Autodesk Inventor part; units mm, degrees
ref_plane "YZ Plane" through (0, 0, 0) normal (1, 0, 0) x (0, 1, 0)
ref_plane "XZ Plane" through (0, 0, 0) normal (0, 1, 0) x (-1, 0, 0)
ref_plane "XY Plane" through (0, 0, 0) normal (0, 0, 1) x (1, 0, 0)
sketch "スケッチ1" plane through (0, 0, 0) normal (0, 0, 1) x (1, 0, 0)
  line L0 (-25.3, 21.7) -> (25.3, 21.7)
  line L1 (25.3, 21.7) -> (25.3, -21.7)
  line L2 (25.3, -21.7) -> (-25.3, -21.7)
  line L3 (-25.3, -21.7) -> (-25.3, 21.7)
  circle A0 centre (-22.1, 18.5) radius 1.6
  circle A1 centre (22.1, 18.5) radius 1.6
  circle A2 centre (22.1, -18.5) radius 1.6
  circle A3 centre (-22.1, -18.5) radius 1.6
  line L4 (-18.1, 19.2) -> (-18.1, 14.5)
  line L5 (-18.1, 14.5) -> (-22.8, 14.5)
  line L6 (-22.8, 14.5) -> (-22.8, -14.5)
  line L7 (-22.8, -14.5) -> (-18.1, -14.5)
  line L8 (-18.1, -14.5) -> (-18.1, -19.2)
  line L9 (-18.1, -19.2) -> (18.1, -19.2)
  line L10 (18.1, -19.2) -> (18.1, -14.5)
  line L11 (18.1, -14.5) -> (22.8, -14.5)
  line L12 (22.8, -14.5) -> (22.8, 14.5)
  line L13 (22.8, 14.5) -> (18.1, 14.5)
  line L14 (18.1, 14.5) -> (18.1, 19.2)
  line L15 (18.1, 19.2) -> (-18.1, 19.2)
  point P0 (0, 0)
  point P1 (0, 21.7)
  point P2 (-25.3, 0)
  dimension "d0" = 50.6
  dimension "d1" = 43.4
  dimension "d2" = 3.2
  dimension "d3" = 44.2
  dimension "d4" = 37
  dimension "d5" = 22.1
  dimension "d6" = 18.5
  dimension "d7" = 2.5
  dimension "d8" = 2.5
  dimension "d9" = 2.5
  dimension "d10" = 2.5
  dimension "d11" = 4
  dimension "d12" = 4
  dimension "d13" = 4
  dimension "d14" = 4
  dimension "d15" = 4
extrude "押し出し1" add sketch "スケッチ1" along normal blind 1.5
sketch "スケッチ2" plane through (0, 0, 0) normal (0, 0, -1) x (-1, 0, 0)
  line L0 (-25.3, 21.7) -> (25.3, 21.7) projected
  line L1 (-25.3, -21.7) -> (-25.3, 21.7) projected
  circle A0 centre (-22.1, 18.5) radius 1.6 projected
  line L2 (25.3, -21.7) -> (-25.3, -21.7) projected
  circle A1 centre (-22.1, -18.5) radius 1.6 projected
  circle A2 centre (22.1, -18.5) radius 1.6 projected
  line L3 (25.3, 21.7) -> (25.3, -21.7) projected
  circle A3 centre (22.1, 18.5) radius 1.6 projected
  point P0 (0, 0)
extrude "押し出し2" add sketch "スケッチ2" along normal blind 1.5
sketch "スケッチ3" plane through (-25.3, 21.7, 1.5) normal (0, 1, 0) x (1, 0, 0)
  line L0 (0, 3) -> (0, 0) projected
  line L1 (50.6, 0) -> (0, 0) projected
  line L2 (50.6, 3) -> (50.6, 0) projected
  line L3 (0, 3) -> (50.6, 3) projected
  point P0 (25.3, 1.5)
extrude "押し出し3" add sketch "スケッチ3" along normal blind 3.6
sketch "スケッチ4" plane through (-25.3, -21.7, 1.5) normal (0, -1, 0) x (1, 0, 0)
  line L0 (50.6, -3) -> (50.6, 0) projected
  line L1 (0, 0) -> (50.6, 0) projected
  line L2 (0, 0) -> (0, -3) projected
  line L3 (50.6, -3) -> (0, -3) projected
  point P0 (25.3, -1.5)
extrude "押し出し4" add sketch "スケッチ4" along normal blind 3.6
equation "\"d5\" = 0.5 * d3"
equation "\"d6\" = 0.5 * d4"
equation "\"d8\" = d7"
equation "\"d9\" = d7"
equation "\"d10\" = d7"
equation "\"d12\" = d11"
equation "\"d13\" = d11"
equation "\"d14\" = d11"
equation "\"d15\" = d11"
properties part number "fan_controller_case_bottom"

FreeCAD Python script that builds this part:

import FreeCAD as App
import Part
import Sketcher

V = App.Vector
Q = App.Units.Quantity


def add_polygon(sketch, points):
    """Adds a closed chain of lines whose ends are joined by coincident constraints."""
    first, n = sketch.GeometryCount, len(points)
    for a, b in zip(points, points[1:] + points[:1]):
        sketch.addGeometry(Part.LineSegment(App.Vector(*a, 0), App.Vector(*b, 0)), False)
    for i in range(n):
        sketch.addConstraint(Sketcher.Constraint("Coincident", first + i, 2, first + (i + 1) % n, 1))

doc = App.newDocument("Part")
params = doc.addObject("Spreadsheet::Sheet", "Params")
for row, (alias, value) in enumerate([
    ("sketch1_diameter", "3.2 mm"),
    ("sketch1_width", "50.6 mm"),
    ("sketch1_height", "43.4 mm"),
    ("pad1_length", "1.5 mm"),
    ("sketch2_diameter", "3.2 mm"),
    ("sketch2_width", "50.6 mm"),
    ("sketch2_height", "43.4 mm"),
    ("pad2_length", "1.5 mm"),
    ("sketch3_height", "3 mm"),
    ("sketch3_width", "50.6 mm"),
    ("pad3_length", "3.6 mm"),
    ("sketch4_height", "3 mm"),
    ("sketch4_width", "50.6 mm"),
    ("pad4_length", "3.6 mm"),
], start=1):
    params.set(f"A{row}", alias)
    params.set(f"B{row}", "=" + value)
    params.setAlias(f"B{row}", alias)

body = doc.addObject("PartDesign::Body", "Body")

# Sketch on XY plane
sketch1 = doc.addObject("Sketcher::SketchObject", "Sketch")
body.addObject(sketch1)
sketch1.AttachmentSupport = (doc.XY_Plane, [""])
sketch1.MapMode = "FlatFace"
add_polygon(sketch1, [(25.3, 21.7), (-25.3, 21.7), (-25.3, -21.7), (25.3, -21.7)])  # lines 0-3
sketch1.addGeometry(Part.Circle(V(-22.1, -18.5, 0), V(0, 0, 1), 1.6), False)  # 4
sketch1.addGeometry(Part.Circle(V(22.1, -18.5, 0), V(0, 0, 1), 1.6), False)  # 5
sketch1.addGeometry(Part.Circle(V(-22.1, 18.5, 0), V(0, 0, 1), 1.6), False)  # 6
add_polygon(sketch1, [(-18.1, 14.5), (-18.1, 19.2), (18.1, 19.2), (18.1, 14.5), (22.8, 14.5), (22.8, -14.5), (18.1, -14.5), (18.1, -19.2), (-18.1, -19.2), (-18.1, -14.5), (-22.8, -14.5), (-22.8, 14.5)])  # lines 7-18
sketch1.addGeometry(Part.Circle(V(22.1, 18.5, 0), V(0, 0, 1), 1.6), False)  # 19
sketch1.addConstraint([
    Sketcher.Constraint("Horizontal", 0),
    Sketcher.Constraint("Vertical", 1),
    Sketcher.Constraint("Horizontal", 2),
    Sketcher.Constraint("Vertical", 3),
    Sketcher.Constraint("Vertical", 7),
    Sketcher.Constraint("Horizontal", 8),
    Sketcher.Constraint("Vertical", 9),
    Sketcher.Constraint("Horizontal", 10),
    Sketcher.Constraint("Vertical", 11),
    Sketcher.Constraint("Horizontal", 12),
    Sketcher.Constraint("Vertical", 13),
    Sketcher.Constraint("Horizontal", 14),
    Sketcher.Constraint("Vertical", 15),
    Sketcher.Constraint("Horizontal", 16),
    Sketcher.Constraint("Vertical", 17),
    Sketcher.Constraint("Horizontal", 18),
    Sketcher.Constraint("Equal", 4, 5),
    Sketcher.Constraint("Equal", 5, 6),
    Sketcher.Constraint("Equal", 6, 19),
    Sketcher.Constraint("Symmetric", 5, 3, 6, 3, -1, 1),
    Sketcher.Constraint("Symmetric", 4, 3, 19, 3, -1, 1),
    Sketcher.Constraint("Symmetric", 0, 2, 2, 2, -1, 1),
    Sketcher.Constraint("Symmetric", 7, 2, 13, 2, -1, 1),
    Sketcher.Constraint("Symmetric", 9, 2, 15, 2, -1, 1),
    Sketcher.Constraint("Symmetric", 11, 2, 17, 2, -1, 1),
    Sketcher.Constraint("Symmetric", 4, 3, 5, 3, -2),
    Sketcher.Constraint("Symmetric", 12, 2, 15, 2, -2),
    Sketcher.Constraint("Equal", 18, 7),
    Sketcher.Constraint("Diameter", 4, Q("3.2 mm")),
    Sketcher.Constraint("DistanceX", 0, 2, 0, 1, Q("50.6 mm")),
    Sketcher.Constraint("DistanceY", 1, 2, 1, 1, Q("43.4 mm")),
    Sketcher.Constraint("DistanceY", 4, 3, 6, 3, Q("37 mm")),
    Sketcher.Constraint("DistanceX", 6, 3, 7, 2, Q("4 mm")),
    Sketcher.Constraint("DistanceY", 9, 2, 19, 3, Q("4 mm")),
    Sketcher.Constraint("DistanceX", 4, 3, -1, 1, Q("22.1 mm")),
    Sketcher.Constraint("DistanceY", 7, 2, 0, 2, Q("2.5 mm")),
])
sketch1.setExpression("Constraints[44]", "Params.sketch1_diameter")
sketch1.setExpression("Constraints[45]", "Params.sketch1_width")
sketch1.setExpression("Constraints[46]", "Params.sketch1_height")
pad1 = doc.addObject("PartDesign::Pad", "Pad")
body.addObject(pad1)
pad1.Profile = sketch1
pad1.setExpression("Length", "Params.pad1_length")

# Sketch on XY plane
sketch2 = doc.addObject("Sketcher::SketchObject", "Sketch001")
body.addObject(sketch2)
sketch2.AttachmentSupport = (doc.XY_Plane, [""])
sketch2.MapMode = "FlatFace"
add_polygon(sketch2, [(-25.3, 21.7), (25.3, 21.7), (25.3, -21.7), (-25.3, -21.7)])  # lines 0-3
sketch2.addGeometry(Part.Circle(V(22.1, -18.5, 0), V(0, 0, 1), 1.6), False)  # 4
sketch2.addGeometry(Part.Circle(V(-22.1, -18.5, 0), V(0, 0, 1), 1.6), False)  # 5
sketch2.addGeometry(Part.Circle(V(22.1, 18.5, 0), V(0, 0, 1), 1.6), False)  # 6
sketch2.addGeometry(Part.Circle(V(-22.1, 18.5, 0), V(0, 0, 1), 1.6), False)  # 7
sketch2.addConstraint([
    Sketcher.Constraint("Horizontal", 0),
    Sketcher.Constraint("Vertical", 1),
    Sketcher.Constraint("Horizontal", 2),
    Sketcher.Constraint("Vertical", 3),
    Sketcher.Constraint("Equal", 4, 5),
    Sketcher.Constraint("Equal", 5, 6),
    Sketcher.Constraint("Equal", 6, 7),
    Sketcher.Constraint("Symmetric", 5, 3, 6, 3, -1, 1),
    Sketcher.Constraint("Symmetric", 4, 3, 7, 3, -1, 1),
    Sketcher.Constraint("Symmetric", 0, 2, 2, 2, -1, 1),
    Sketcher.Constraint("Symmetric", 4, 3, 5, 3, -2),
    Sketcher.Constraint("Diameter", 4, Q("3.2 mm")),
    Sketcher.Constraint("DistanceX", 0, 1, 0, 2, Q("50.6 mm")),
    Sketcher.Constraint("DistanceY", 1, 2, 1, 1, Q("43.4 mm")),
    Sketcher.Constraint("DistanceY", 4, 3, 6, 3, Q("37 mm")),
    Sketcher.Constraint("DistanceX", -1, 1, 4, 3, Q("22.1 mm")),
])
sketch2.setExpression("Constraints[15]", "Params.sketch2_diameter")
sketch2.setExpression("Constraints[16]", "Params.sketch2_width")
sketch2.setExpression("Constraints[17]", "Params.sketch2_height")
pad2 = doc.addObject("PartDesign::Pad", "Pad001")
body.addObject(pad2)
pad2.Profile = sketch2
pad2.setExpression("Length", "Params.pad2_length")
pad2.Reversed = True

# Sketch on XZ plane
sketch3 = doc.addObject("Sketcher::SketchObject", "Sketch002")
body.addObject(sketch3)
sketch3.AttachmentSupport = (doc.XZ_Plane, [""])
sketch3.MapMode = "FlatFace"
sketch3.AttachmentOffset = App.Placement(V(0, 0, -21.7), App.Rotation())
add_polygon(sketch3, [(25.3, -1.5), (-25.3, -1.5), (-25.3, 1.5), (25.3, 1.5)])  # lines 0-3
sketch3.addConstraint([
    Sketcher.Constraint("Horizontal", 0),
    Sketcher.Constraint("Vertical", 1),
    Sketcher.Constraint("Horizontal", 2),
    Sketcher.Constraint("Vertical", 3),
    Sketcher.Constraint("Symmetric", 0, 2, 2, 2, -1, 1),
    Sketcher.Constraint("DistanceY", 1, 1, 1, 2, Q("3 mm")),
    Sketcher.Constraint("DistanceX", 0, 2, 0, 1, Q("50.6 mm")),
])
sketch3.setExpression("Constraints[9]", "Params.sketch3_height")
sketch3.setExpression("Constraints[10]", "Params.sketch3_width")
pad3 = doc.addObject("PartDesign::Pad", "Pad002")
body.addObject(pad3)
pad3.Profile = sketch3
pad3.setExpression("Length", "Params.pad3_length")
pad3.Reversed = True

# Sketch on XZ plane
sketch4 = doc.addObject("Sketcher::SketchObject", "Sketch003")
body.addObject(sketch4)
sketch4.AttachmentSupport = (doc.XZ_Plane, [""])
sketch4.MapMode = "FlatFace"
sketch4.AttachmentOffset = App.Placement(V(0, 0, 21.7), App.Rotation())
add_polygon(sketch4, [(-25.3, -1.5), (25.3, -1.5), (25.3, 1.5), (-25.3, 1.5)])  # lines 0-3
sketch4.addConstraint([
    Sketcher.Constraint("Horizontal", 0),
    Sketcher.Constraint("Vertical", 1),
    Sketcher.Constraint("Horizontal", 2),
    Sketcher.Constraint("Vertical", 3),
    Sketcher.Constraint("Symmetric", 0, 2, 2, 2, -1, 1),
    Sketcher.Constraint("DistanceY", 1, 1, 1, 2, Q("3 mm")),
    Sketcher.Constraint("DistanceX", 0, 1, 0, 2, Q("50.6 mm")),
])
sketch4.setExpression("Constraints[9]", "Params.sketch4_height")
sketch4.setExpression("Constraints[10]", "Params.sketch4_width")
pad4 = doc.addObject("PartDesign::Pad", "Pad003")
body.addObject(pad4)
pad4.Profile = sketch4
pad4.setExpression("Length", "Params.pad4_length")

doc.recompute()
